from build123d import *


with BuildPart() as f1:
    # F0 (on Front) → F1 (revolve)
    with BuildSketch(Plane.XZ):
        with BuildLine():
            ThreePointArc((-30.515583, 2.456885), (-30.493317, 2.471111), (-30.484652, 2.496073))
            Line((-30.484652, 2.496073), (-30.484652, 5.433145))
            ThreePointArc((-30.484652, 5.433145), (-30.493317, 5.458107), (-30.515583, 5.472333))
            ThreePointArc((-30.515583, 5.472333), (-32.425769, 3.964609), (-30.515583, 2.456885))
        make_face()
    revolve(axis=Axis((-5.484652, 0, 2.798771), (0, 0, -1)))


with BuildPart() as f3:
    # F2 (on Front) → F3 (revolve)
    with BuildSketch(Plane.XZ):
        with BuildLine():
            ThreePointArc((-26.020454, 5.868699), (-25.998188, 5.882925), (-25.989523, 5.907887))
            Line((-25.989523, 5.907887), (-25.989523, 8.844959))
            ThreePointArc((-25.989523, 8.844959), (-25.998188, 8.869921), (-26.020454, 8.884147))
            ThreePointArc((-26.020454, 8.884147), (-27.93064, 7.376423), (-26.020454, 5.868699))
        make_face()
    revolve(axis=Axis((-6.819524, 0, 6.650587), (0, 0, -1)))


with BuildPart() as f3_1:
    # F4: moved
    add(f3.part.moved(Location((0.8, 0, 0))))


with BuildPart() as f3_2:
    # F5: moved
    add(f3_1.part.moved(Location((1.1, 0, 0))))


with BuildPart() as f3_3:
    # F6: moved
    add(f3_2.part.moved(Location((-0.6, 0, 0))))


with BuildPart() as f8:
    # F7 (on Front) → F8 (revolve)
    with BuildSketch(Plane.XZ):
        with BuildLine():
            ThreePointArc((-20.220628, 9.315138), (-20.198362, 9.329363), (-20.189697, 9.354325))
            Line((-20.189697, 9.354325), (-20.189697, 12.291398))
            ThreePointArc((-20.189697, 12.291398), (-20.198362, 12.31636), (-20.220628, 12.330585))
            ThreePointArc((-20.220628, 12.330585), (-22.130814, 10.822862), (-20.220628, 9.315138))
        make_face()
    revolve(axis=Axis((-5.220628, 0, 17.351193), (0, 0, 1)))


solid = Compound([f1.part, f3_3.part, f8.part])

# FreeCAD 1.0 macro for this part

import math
import FreeCAD as App
import Part
import Sketcher

V = App.Vector

doc = App.newDocument("Part")
body = doc.addObject("PartDesign::Body", "Body")

# Sketch on XZ plane
sketch1 = body.newObject("Sketcher::SketchObject", "Sketch")
sketch1.AttachmentSupport = (doc.getObject("XZ_Plane"), [""])
sketch1.MapMode = "FlatFace"
sketch1.addGeometry([
    Part.ArcOfCircle(Part.Circle(V(-30.525, 2.496, 0), V(0, 0, 1), 0.04), math.radians(-77), math.radians(0)),
    Part.LineSegment(V(-30.485, 2.496, 0), V(-30.485, 5.433, 0)),
    Part.ArcOfCircle(Part.Circle(V(-30.525, 5.433, 0), V(0, 0, 1), 0.04), math.radians(0), math.radians(77)),
    Part.ArcOfCircle(Part.Circle(V(-30.876, 3.965, 0), V(0, 0, 1), 1.55), math.radians(77), math.radians(283)),
], False)
sketch1.addGeometry(Part.LineSegment(V(-5.485, 5.472, 0), V(-5.485, 2.457, 0)), True)  # axis
sketch1.addConstraint([
    Sketcher.Constraint("Coincident", 0, 2, 1, 1),
    Sketcher.Constraint("Coincident", 1, 2, 2, 1),
    Sketcher.Constraint("Coincident", 2, 2, 3, 1),
    Sketcher.Constraint("Coincident", 3, 2, 0, 1),
    Sketcher.Constraint("Vertical", 1),
    Sketcher.Constraint("Vertical", 4),
    Sketcher.Constraint("Equal", 0, 2),
    Sketcher.Constraint("Horizontal", 2, 3, 1, 2),
    Sketcher.Constraint("Horizontal", 2, 2, 4, 1),
    Sketcher.Constraint("Horizontal", 3, 2, 4, 2),
    Sketcher.Constraint("Vertical", 2, 2, 3, 2),
    Sketcher.Constraint("DistanceX", 1, 2, 4, 1, 25.0),
    Sketcher.Constraint("Radius", 3, 1.550122),
    Sketcher.Constraint("Radius", 0, 0.040292),
    Sketcher.Constraint("DistanceY", 1, 1, 1, 2, 2.937072),
    Sketcher.Constraint("DistanceY", 4, 2, 4, 1, 3.015448),
    Sketcher.Constraint("DistanceY", -1, 1, 3, 3, 3.964609),
    Sketcher.Constraint("DistanceX", 4, 1, -1, 1, 5.484652),
    Sketcher.Constraint("DistanceY", 0, 3, 2, 3, 2.937069),
])
revolution = body.newObject("PartDesign::Revolution", "Revolution")
revolution.Profile = sketch1
revolution.ReferenceAxis = (sketch1, ["Axis0"])
revolution.Angle = 360
body2 = doc.addObject("PartDesign::Body", "Body001")

# Sketch on XZ plane
sketch2 = body2.newObject("Sketcher::SketchObject", "Sketch001")
sketch2.AttachmentSupport = (doc.getObject("XZ_Plane001"), [""])
sketch2.MapMode = "FlatFace"
sketch2.addGeometry([
    Part.ArcOfCircle(Part.Circle(V(-26.03, 5.908, 0), V(0, 0, 1), 0.04), math.radians(-77), math.radians(0)),
    Part.LineSegment(V(-25.99, 5.908, 0), V(-25.99, 8.845, 0)),
    Part.ArcOfCircle(Part.Circle(V(-26.03, 8.845, 0), V(0, 0, 1), 0.04), math.radians(0), math.radians(77)),
    Part.ArcOfCircle(Part.Circle(V(-26.381, 7.376, 0), V(0, 0, 1), 1.55), math.radians(77), math.radians(283)),
], False)
sketch2.addGeometry(Part.LineSegment(V(-6.82, 8.884, 0), V(-6.82, 5.869, 0)), True)  # axis
sketch2.addConstraint([
    Sketcher.Constraint("Coincident", 0, 2, 1, 1),
    Sketcher.Constraint("Coincident", 1, 2, 2, 1),
    Sketcher.Constraint("Coincident", 2, 2, 3, 1),
    Sketcher.Constraint("Coincident", 3, 2, 0, 1),
    Sketcher.Constraint("Vertical", 1),
    Sketcher.Constraint("Vertical", 4),
    Sketcher.Constraint("Equal", 0, 2),
    Sketcher.Constraint("Horizontal", 2, 3, 1, 2),
    Sketcher.Constraint("Horizontal", 2, 2, 4, 1),
    Sketcher.Constraint("Horizontal", 3, 2, 4, 2),
    Sketcher.Constraint("Vertical", 2, 2, 3, 2),
    Sketcher.Constraint("Radius", 3, 1.550122),
    Sketcher.Constraint("DistanceX", 1, 2, 4, 1, 19.169999),
    Sketcher.Constraint("Radius", 0, 0.040292),
    Sketcher.Constraint("DistanceY", 1, 1, 1, 2, 2.937072),
    Sketcher.Constraint("DistanceY", 4, 2, 4, 1, 3.015448),
    Sketcher.Constraint("DistanceY", -1, 1, 3, 2, 5.868699),
    Sketcher.Constraint("DistanceY", -1, 1, 0, 3, 5.907889),
    Sketcher.Constraint("DistanceX", 3, 3, -1, 1, 26.380518),
])
revolution2 = body2.newObject("PartDesign::Revolution", "Revolution001")
revolution2.Profile = sketch2
revolution2.ReferenceAxis = (sketch2, ["Axis0"])
revolution2.Angle = 360
body3 = doc.addObject("PartDesign::Body", "Body002")
doc.recompute()

body2.Placement = App.Placement(V(0.8, 0, 0), App.Rotation(V(0, 0, 1), 0))
boolean = body3.newObject("PartDesign::Boolean", "Boolean")
boolean.Type = "Fuse"
boolean.addObjects([body2])
body4 = doc.addObject("PartDesign::Body", "Body003")
doc.recompute()

body3.Placement = App.Placement(V(1.1, 0, 0), App.Rotation(V(0, 0, 1), 0))
boolean2 = body4.newObject("PartDesign::Boolean", "Boolean001")
boolean2.Type = "Fuse"
boolean2.addObjects([body3])
body5 = doc.addObject("PartDesign::Body", "Body004")
doc.recompute()

body4.Placement = App.Placement(V(-0.6, 0, 0), App.Rotation(V(0, 0, 1), 0))
boolean3 = body5.newObject("PartDesign::Boolean", "Boolean002")
boolean3.Type = "Fuse"
boolean3.addObjects([body4])
body6 = doc.addObject("PartDesign::Body", "Body005")

# Sketch on XZ plane
sketch3 = body6.newObject("Sketcher::SketchObject", "Sketch002")
sketch3.AttachmentSupport = (doc.getObject("XZ_Plane005"), [""])
sketch3.MapMode = "FlatFace"
sketch3.addGeometry([
    Part.ArcOfCircle(Part.Circle(V(-20.23, 9.354, 0), V(0, 0, 1), 0.04), math.radians(-77), math.radians(0)),
    Part.LineSegment(V(-20.19, 9.354, 0), V(-20.19, 12.291, 0)),
    Part.ArcOfCircle(Part.Circle(V(-20.23, 12.291, 0), V(0, 0, 1), 0.04), math.radians(0), math.radians(77)),
    Part.ArcOfCircle(Part.Circle(V(-20.581, 10.823, 0), V(0, 0, 1), 1.55), math.radians(77), math.radians(283)),
], False)
sketch3.addGeometry(Part.LineSegment(V(-5.221, 9.315, 0), V(-5.221, 12.331, 0)), True)  # axis
sketch3.addConstraint([
    Sketcher.Constraint("Coincident", 0, 2, 1, 1),
    Sketcher.Constraint("Coincident", 1, 2, 2, 1),
    Sketcher.Constraint("Coincident", 2, 2, 3, 1),
    Sketcher.Constraint("Coincident", 3, 2, 0, 1),
    Sketcher.Constraint("Vertical", 1),
    Sketcher.Constraint("Vertical", 4),
    Sketcher.Constraint("Equal", 0, 2),
    Sketcher.Constraint("Horizontal", 2, 3, 1, 2),
    Sketcher.Constraint("Horizontal", 3, 2, 4, 1),
    Sketcher.Constraint("Horizontal", 2, 2, 4, 2),
    Sketcher.Constraint("Vertical", 2, 2, 3, 2),
    Sketcher.Constraint("DistanceX", 3, 2, 4, 1, 15.0),
    Sketcher.Constraint("Radius", 0, 0.04029),
    Sketcher.Constraint("Radius", 3, 1.550121),
    Sketcher.Constraint("DistanceY", 1, 1, 1, 2, 2.937073),
    Sketcher.Constraint("DistanceY", 4, 1, 4, 2, 3.015447),
    Sketcher.Constraint("DistanceY", -1, 1, 3, 3, 10.822862),
    Sketcher.Constraint("DistanceX", 2, 2, -1, 1, 20.220628),
    Sketcher.Constraint("DistanceY", 0, 3, 2, 3, 2.937071),
])
revolution3 = body6.newObject("PartDesign::Revolution", "Revolution002")
revolution3.Profile = sketch3
revolution3.ReferenceAxis = (sketch3, ["Axis0"])
revolution3.Angle = 360

doc.recompute()
